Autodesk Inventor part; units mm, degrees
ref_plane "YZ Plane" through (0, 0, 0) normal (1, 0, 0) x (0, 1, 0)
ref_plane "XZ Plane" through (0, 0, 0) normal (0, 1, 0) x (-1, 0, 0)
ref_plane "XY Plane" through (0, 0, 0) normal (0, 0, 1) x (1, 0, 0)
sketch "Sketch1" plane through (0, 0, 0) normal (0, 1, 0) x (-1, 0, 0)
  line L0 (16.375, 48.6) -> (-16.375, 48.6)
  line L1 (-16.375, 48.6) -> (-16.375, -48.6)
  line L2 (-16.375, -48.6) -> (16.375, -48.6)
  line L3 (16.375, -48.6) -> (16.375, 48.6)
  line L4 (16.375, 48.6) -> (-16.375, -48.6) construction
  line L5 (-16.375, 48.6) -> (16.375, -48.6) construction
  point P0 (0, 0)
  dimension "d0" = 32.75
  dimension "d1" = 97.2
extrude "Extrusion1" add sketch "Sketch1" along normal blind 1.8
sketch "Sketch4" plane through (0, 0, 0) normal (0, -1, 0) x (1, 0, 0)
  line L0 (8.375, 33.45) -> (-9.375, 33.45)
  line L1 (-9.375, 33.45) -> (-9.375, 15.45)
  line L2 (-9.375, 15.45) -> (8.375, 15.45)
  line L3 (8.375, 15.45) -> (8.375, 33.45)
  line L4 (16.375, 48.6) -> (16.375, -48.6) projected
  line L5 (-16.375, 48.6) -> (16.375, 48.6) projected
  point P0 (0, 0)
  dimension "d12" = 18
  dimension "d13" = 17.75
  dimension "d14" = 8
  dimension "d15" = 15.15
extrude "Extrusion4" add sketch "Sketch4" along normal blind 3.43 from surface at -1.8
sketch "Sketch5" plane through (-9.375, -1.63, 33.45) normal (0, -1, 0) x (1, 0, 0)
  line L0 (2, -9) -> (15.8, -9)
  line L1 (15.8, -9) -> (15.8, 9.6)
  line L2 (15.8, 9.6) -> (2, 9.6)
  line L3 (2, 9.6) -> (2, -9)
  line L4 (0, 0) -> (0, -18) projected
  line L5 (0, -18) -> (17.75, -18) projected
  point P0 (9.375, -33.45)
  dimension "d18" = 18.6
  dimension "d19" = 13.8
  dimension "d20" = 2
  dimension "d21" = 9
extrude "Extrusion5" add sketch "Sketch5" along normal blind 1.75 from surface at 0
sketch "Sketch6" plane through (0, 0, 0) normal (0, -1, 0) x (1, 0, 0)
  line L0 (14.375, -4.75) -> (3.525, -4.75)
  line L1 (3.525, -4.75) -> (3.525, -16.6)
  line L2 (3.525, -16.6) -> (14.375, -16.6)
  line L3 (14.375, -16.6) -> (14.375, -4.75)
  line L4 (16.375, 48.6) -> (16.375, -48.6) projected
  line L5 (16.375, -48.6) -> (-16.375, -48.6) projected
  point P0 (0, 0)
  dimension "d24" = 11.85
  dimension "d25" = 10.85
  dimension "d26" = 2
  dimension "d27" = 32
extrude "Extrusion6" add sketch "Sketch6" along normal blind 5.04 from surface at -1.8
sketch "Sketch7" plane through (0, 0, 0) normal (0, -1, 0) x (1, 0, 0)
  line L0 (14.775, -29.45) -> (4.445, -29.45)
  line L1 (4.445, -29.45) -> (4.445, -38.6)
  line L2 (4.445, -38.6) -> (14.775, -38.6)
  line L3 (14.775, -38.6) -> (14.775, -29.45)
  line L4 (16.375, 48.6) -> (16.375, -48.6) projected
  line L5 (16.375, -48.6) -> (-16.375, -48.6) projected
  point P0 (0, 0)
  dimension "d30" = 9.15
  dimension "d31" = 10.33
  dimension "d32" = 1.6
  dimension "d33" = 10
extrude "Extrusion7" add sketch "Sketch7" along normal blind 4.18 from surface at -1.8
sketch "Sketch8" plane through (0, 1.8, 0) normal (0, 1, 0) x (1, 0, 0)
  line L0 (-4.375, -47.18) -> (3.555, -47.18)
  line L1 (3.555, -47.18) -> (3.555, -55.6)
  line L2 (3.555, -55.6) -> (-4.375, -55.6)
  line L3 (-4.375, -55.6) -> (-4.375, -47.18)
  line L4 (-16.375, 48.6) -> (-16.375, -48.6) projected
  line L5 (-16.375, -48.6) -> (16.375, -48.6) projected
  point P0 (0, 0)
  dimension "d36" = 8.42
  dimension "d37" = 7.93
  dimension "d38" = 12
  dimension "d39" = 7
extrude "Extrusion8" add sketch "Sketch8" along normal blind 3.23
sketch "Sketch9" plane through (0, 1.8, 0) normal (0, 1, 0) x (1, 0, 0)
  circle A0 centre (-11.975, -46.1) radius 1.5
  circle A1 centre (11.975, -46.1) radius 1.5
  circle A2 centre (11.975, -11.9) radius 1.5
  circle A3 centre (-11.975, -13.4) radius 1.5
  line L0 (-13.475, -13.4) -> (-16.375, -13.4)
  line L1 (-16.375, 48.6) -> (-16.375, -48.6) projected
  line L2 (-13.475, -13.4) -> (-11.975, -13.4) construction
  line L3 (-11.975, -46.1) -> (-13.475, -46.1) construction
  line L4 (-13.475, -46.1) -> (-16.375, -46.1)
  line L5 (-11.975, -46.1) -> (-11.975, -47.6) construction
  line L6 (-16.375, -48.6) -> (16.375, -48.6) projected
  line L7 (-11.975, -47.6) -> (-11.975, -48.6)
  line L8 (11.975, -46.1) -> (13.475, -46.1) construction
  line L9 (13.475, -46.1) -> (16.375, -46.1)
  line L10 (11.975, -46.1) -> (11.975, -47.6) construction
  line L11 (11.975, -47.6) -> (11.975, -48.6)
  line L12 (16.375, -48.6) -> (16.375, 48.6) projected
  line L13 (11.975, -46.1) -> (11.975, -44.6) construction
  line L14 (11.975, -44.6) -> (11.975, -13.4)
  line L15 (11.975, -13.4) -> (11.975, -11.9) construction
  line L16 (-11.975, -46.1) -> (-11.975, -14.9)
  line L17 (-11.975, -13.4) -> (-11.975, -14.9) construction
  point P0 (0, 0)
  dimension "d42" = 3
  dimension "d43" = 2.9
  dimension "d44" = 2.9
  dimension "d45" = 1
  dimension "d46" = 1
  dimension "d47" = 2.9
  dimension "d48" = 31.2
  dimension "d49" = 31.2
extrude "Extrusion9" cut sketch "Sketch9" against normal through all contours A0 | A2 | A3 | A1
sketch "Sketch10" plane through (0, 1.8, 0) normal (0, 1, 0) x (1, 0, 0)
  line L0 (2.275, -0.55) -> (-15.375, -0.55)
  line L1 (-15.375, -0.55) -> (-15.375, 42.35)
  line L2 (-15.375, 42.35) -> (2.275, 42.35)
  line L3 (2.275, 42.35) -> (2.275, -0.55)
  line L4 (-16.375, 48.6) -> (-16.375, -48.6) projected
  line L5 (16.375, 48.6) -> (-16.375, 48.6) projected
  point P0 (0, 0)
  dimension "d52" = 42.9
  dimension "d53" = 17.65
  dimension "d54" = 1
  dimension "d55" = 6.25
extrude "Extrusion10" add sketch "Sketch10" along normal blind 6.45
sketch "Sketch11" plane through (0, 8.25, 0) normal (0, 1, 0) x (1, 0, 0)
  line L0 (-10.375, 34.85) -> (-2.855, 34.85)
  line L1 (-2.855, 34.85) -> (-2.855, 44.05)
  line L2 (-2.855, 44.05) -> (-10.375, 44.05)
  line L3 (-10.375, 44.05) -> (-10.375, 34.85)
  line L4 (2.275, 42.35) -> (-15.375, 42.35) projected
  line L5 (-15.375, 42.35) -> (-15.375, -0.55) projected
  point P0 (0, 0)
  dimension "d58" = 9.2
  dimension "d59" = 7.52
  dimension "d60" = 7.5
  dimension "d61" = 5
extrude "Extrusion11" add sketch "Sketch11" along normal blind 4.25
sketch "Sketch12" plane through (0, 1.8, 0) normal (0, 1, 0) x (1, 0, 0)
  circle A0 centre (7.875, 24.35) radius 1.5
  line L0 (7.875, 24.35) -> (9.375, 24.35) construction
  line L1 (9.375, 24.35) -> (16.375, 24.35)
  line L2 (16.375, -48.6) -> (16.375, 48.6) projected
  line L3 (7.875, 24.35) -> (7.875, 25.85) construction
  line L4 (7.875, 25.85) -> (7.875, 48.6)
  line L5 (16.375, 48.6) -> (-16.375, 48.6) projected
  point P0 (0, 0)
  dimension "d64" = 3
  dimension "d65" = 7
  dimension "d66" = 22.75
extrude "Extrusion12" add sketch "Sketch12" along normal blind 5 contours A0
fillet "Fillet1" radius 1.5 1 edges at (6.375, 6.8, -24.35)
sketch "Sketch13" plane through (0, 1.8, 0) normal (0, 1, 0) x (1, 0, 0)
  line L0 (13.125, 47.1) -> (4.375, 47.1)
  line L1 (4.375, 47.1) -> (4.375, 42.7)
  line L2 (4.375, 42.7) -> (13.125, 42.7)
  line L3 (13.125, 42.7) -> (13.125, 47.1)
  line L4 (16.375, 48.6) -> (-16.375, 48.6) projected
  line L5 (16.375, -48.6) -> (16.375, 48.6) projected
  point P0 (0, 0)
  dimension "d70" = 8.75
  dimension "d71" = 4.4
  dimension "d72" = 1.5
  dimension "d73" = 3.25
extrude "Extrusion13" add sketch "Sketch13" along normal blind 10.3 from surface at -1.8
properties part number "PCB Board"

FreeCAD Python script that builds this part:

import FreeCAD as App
import Part
import Sketcher
from FreeCAD import Vector
Q = App.Units.Quantity


def edges_at(feature, points):
    """Names of the edges that pass closest to the given points."""
    edges = feature.Shape.Edges
    near = lambda p: min(range(len(edges)), key=lambda i: edges[i].distToShape(Part.Vertex(*p))[0])
    return sorted({f"Edge{near(p) + 1}" for p in points})

doc = App.newDocument("Part")
body = doc.addObject("PartDesign::Body", "Body")

sketch1 = doc.addObject("Sketcher::SketchObject", "Sketch")
body.addObject(sketch1)
sketch1.AttachmentSupport = (doc.XZ_Plane, [""])
sketch1.MapMode = "FlatFace"
sketch1.addGeometry(Part.LineSegment(Vector(-16, -49, 0), Vector(-16, 49, 0)), False)
sketch1.addGeometry(Part.LineSegment(Vector(-16, 49, 0), Vector(16, 49, 0)), False)
sketch1.addGeometry(Part.LineSegment(Vector(16, 49, 0), Vector(16, -49, 0)), False)
sketch1.addGeometry(Part.LineSegment(Vector(16, -49, 0), Vector(-16, -49, 0)), False)
sketch1.addConstraint(Sketcher.Constraint("Coincident", 0, 2, 1, 1))
sketch1.addConstraint(Sketcher.Constraint("Coincident", 1, 2, 2, 1))
sketch1.addConstraint(Sketcher.Constraint("Coincident", 2, 2, 3, 1))
sketch1.addConstraint(Sketcher.Constraint("Coincident", 3, 2, 0, 1))
sketch1.addConstraint(Sketcher.Constraint("Vertical", 0))
sketch1.addConstraint(Sketcher.Constraint("Horizontal", 1))
sketch1.addConstraint(Sketcher.Constraint("Vertical", 2))
sketch1.addConstraint(Sketcher.Constraint("Horizontal", 3))
sketch1.addConstraint(Sketcher.Constraint("Symmetric", 0, 2, 2, 2, -1, 1))
sketch1.addConstraint(Sketcher.Constraint("DistanceY", 0, 1, 0, 2, Q("97.2 mm")))
sketch1.addConstraint(Sketcher.Constraint("DistanceX", 1, 1, 1, 2, Q("32.75 mm")))
pad1 = doc.addObject("PartDesign::Pad", "Pad")
body.addObject(pad1)
pad1.Profile = sketch1
pad1.Length = 1.8
pad1.Reversed = True

sketch2 = doc.addObject("Sketcher::SketchObject", "Sketch001")
body.addObject(sketch2)
sketch2.AttachmentSupport = (doc.XZ_Plane, [""])
sketch2.MapMode = "FlatFace"
sketch2.AttachmentOffset = App.Placement(Vector(0, 0, -1.8), App.Rotation())
sketch2.addGeometry(Part.LineSegment(Vector(8, 15, 0), Vector(8, 33, 0)), False)
sketch2.addGeometry(Part.LineSegment(Vector(8, 33, 0), Vector(-9, 33, 0)), False)
sketch2.addGeometry(Part.LineSegment(Vector(-9, 33, 0), Vector(-9, 15, 0)), False)
sketch2.addGeometry(Part.LineSegment(Vector(-9, 15, 0), Vector(8, 15, 0)), False)
sketch2.addConstraint(Sketcher.Constraint("Coincident", 0, 2, 1, 1))
sketch2.addConstraint(Sketcher.Constraint("Coincident", 1, 2, 2, 1))
sketch2.addConstraint(Sketcher.Constraint("Coincident", 2, 2, 3, 1))
sketch2.addConstraint(Sketcher.Constraint("Coincident", 3, 2, 0, 1))
sketch2.addConstraint(Sketcher.Constraint("Vertical", 0))
sketch2.addConstraint(Sketcher.Constraint("Horizontal", 1))
sketch2.addConstraint(Sketcher.Constraint("Vertical", 2))
sketch2.addConstraint(Sketcher.Constraint("Horizontal", 3))
sketch2.addConstraint(Sketcher.Constraint("DistanceY", 0, 1, 0, 2, Q("18 mm")))
sketch2.addConstraint(Sketcher.Constraint("DistanceX", 1, 2, 1, 1, Q("17.75 mm")))
sketch2.addConstraint(Sketcher.Constraint("DistanceY", -1, 1, 0, 2, Q("33.45 mm")))
sketch2.addConstraint(Sketcher.Constraint("DistanceX", -1, 1, 0, 2, Q("8.375 mm")))
pad2 = doc.addObject("PartDesign::Pad", "Pad001")
body.addObject(pad2)
pad2.Profile = sketch2
pad2.Length = 3.43

sketch3 = doc.addObject("Sketcher::SketchObject", "Sketch002")
body.addObject(sketch3)
sketch3.AttachmentSupport = (doc.XZ_Plane, [""])
sketch3.MapMode = "FlatFace"
sketch3.AttachmentOffset = App.Placement(Vector(0, 0, 1.63), App.Rotation())
sketch3.addGeometry(Part.LineSegment(Vector(-7, 43, 0), Vector(-7, 24, 0)), False)
sketch3.addGeometry(Part.LineSegment(Vector(-7, 24, 0), Vector(6, 24, 0)), False)
sketch3.addGeometry(Part.LineSegment(Vector(6, 24, 0), Vector(6, 43, 0)), False)
sketch3.addGeometry(Part.LineSegment(Vector(6, 43, 0), Vector(-7, 43, 0)), False)
sketch3.addConstraint(Sketcher.Constraint("Coincident", 0, 2, 1, 1))
sketch3.addConstraint(Sketcher.Constraint("Coincident", 1, 2, 2, 1))
sketch3.addConstraint(Sketcher.Constraint("Coincident", 2, 2, 3, 1))
sketch3.addConstraint(Sketcher.Constraint("Coincident", 3, 2, 0, 1))
sketch3.addConstraint(Sketcher.Constraint("Vertical", 0))
sketch3.addConstraint(Sketcher.Constraint("Horizontal", 1))
sketch3.addConstraint(Sketcher.Constraint("Vertical", 2))
sketch3.addConstraint(Sketcher.Constraint("Horizontal", 3))
sketch3.addConstraint(Sketcher.Constraint("DistanceX", 1, 1, 1, 2, Q("13.8 mm")))
sketch3.addConstraint(Sketcher.Constraint("DistanceY", 0, 2, 0, 1, Q("18.6 mm")))
sketch3.addConstraint(Sketcher.Constraint("DistanceY", -1, 1, 0, 2, Q("24.45 mm")))
sketch3.addConstraint(Sketcher.Constraint("DistanceX", 0, 2, -1, 1, Q("7.375 mm")))
pad3 = doc.addObject("PartDesign::Pad", "Pad002")
body.addObject(pad3)
pad3.Profile = sketch3
pad3.Length = 1.75

sketch4 = doc.addObject("Sketcher::SketchObject", "Sketch003")
body.addObject(sketch4)
sketch4.AttachmentSupport = (doc.XZ_Plane, [""])
sketch4.MapMode = "FlatFace"
sketch4.AttachmentOffset = App.Placement(Vector(0, 0, -1.8), App.Rotation())
sketch4.addGeometry(Part.LineSegment(Vector(14, -17, 0), Vector(14, -5, 0)), False)
sketch4.addGeometry(Part.LineSegment(Vector(14, -5, 0), Vector(4, -5, 0)), False)
sketch4.addGeometry(Part.LineSegment(Vector(4, -5, 0), Vector(4, -17, 0)), False)
sketch4.addGeometry(Part.LineSegment(Vector(4, -17, 0), Vector(14, -17, 0)), False)
sketch4.addConstraint(Sketcher.Constraint("Coincident", 0, 2, 1, 1))
sketch4.addConstraint(Sketcher.Constraint("Coincident", 1, 2, 2, 1))
sketch4.addConstraint(Sketcher.Constraint("Coincident", 2, 2, 3, 1))
sketch4.addConstraint(Sketcher.Constraint("Coincident", 3, 2, 0, 1))
sketch4.addConstraint(Sketcher.Constraint("Vertical", 0))
sketch4.addConstraint(Sketcher.Constraint("Horizontal", 1))
sketch4.addConstraint(Sketcher.Constraint("Vertical", 2))
sketch4.addConstraint(Sketcher.Constraint("Horizontal", 3))
sketch4.addConstraint(Sketcher.Constraint("DistanceX", 1, 2, 1, 1, Q("10.85 mm")))
sketch4.addConstraint(Sketcher.Constraint("DistanceY", 0, 1, 0, 2, Q("11.85 mm")))
sketch4.addConstraint(Sketcher.Constraint("DistanceY", 2, 2, -1, 1, Q("16.6 mm")))
sketch4.addConstraint(Sketcher.Constraint("DistanceX", -1, 1, 0, 2, Q("14.375 mm")))
pad4 = doc.addObject("PartDesign::Pad", "Pad003")
body.addObject(pad4)
pad4.Profile = sketch4
pad4.Length = 5.04

sketch5 = doc.addObject("Sketcher::SketchObject", "Sketch004")
body.addObject(sketch5)
sketch5.AttachmentSupport = (doc.XZ_Plane, [""])
sketch5.MapMode = "FlatFace"
sketch5.AttachmentOffset = App.Placement(Vector(0, 0, -1.8), App.Rotation())
sketch5.addGeometry(Part.LineSegment(Vector(15, -39, 0), Vector(15, -29, 0)), False)
sketch5.addGeometry(Part.LineSegment(Vector(15, -29, 0), Vector(4, -29, 0)), False)
sketch5.addGeometry(Part.LineSegment(Vector(4, -29, 0), Vector(4, -39, 0)), False)
sketch5.addGeometry(Part.LineSegment(Vector(4, -39, 0), Vector(15, -39, 0)), False)
sketch5.addConstraint(Sketcher.Constraint("Coincident", 0, 2, 1, 1))
sketch5.addConstraint(Sketcher.Constraint("Coincident", 1, 2, 2, 1))
sketch5.addConstraint(Sketcher.Constraint("Coincident", 2, 2, 3, 1))
sketch5.addConstraint(Sketcher.Constraint("Coincident", 3, 2, 0, 1))
sketch5.addConstraint(Sketcher.Constraint("Vertical", 0))
sketch5.addConstraint(Sketcher.Constraint("Horizontal", 1))
sketch5.addConstraint(Sketcher.Constraint("Vertical", 2))
sketch5.addConstraint(Sketcher.Constraint("Horizontal", 3))
sketch5.addConstraint(Sketcher.Constraint("DistanceX", 1, 2, 1, 1, Q("10.33 mm")))
sketch5.addConstraint(Sketcher.Constraint("DistanceY", 0, 1, 0, 2, Q("9.15 mm")))
sketch5.addConstraint(Sketcher.Constraint("DistanceY", 2, 2, -1, 1, Q("38.6 mm")))
sketch5.addConstraint(Sketcher.Constraint("DistanceX", -1, 1, 0, 2, Q("14.775 mm")))
pad5 = doc.addObject("PartDesign::Pad", "Pad004")
body.addObject(pad5)
pad5.Profile = sketch5
pad5.Length = 4.18

sketch6 = doc.addObject("Sketcher::SketchObject", "Sketch005")
body.addObject(sketch6)
sketch6.AttachmentSupport = (doc.XZ_Plane, [""])
sketch6.MapMode = "FlatFace"
sketch6.AttachmentOffset = App.Placement(Vector(0, 0, -1.8), App.Rotation())
sketch6.addGeometry(Part.LineSegment(Vector(4, 47, 0), Vector(-4, 47, 0)), False)
sketch6.addGeometry(Part.LineSegment(Vector(-4, 47, 0), Vector(-4, 56, 0)), False)
sketch6.addGeometry(Part.LineSegment(Vector(-4, 56, 0), Vector(4, 56, 0)), False)
sketch6.addGeometry(Part.LineSegment(Vector(4, 56, 0), Vector(4, 47, 0)), False)
sketch6.addConstraint(Sketcher.Constraint("Coincident", 0, 2, 1, 1))
sketch6.addConstraint(Sketcher.Constraint("Coincident", 1, 2, 2, 1))
sketch6.addConstraint(Sketcher.Constraint("Coincident", 2, 2, 3, 1))
sketch6.addConstraint(Sketcher.Constraint("Coincident", 3, 2, 0, 1))
sketch6.addConstraint(Sketcher.Constraint("Horizontal", 0))
sketch6.addConstraint(Sketcher.Constraint("Vertical", 1))
sketch6.addConstraint(Sketcher.Constraint("Horizontal", 2))
sketch6.addConstraint(Sketcher.Constraint("Vertical", 3))
sketch6.addConstraint(Sketcher.Constraint("DistanceX", 0, 2, 0, 1, Q("7.93 mm")))
sketch6.addConstraint(Sketcher.Constraint("DistanceY", 1, 1, 1, 2, Q("8.42 mm")))
sketch6.addConstraint(Sketcher.Constraint("DistanceY", -1, 1, 1, 2, Q("55.6 mm")))
sketch6.addConstraint(Sketcher.Constraint("DistanceX", 0, 2, -1, 1, Q("4.375 mm")))
pad6 = doc.addObject("PartDesign::Pad", "Pad005")
body.addObject(pad6)
pad6.Profile = sketch6
pad6.Length = 3.23
pad6.Reversed = True

sketch7 = doc.addObject("Sketcher::SketchObject", "Sketch006")
body.addObject(sketch7)
sketch7.AttachmentSupport = (doc.XZ_Plane, [""])
sketch7.MapMode = "FlatFace"
sketch7.AttachmentOffset = App.Placement(Vector(0, 0, -1.8), App.Rotation())
sketch7.addGeometry(Part.Circle(Vector(-12, 46.1, 0), Vector(0, 0, 1), 1.5), False)
sketch7.addGeometry(Part.Circle(Vector(12, 11.9, 0), Vector(0, 0, 1), 1.5), False)
sketch7.addGeometry(Part.Circle(Vector(-12, 13.4, 0), Vector(0, 0, 1), 1.5), False)
sketch7.addGeometry(Part.Circle(Vector(12, 46.1, 0), Vector(0, 0, 1), 1.5), False)
sketch7.addConstraint(Sketcher.Constraint("Equal", 0, 1))
sketch7.addConstraint(Sketcher.Constraint("Equal", 1, 2))
sketch7.addConstraint(Sketcher.Constraint("Equal", 2, 3))
sketch7.addConstraint(Sketcher.Constraint("Symmetric", 0, 3, 3, 3, -2))
sketch7.addConstraint(Sketcher.Constraint("Vertical", 0, 3, 2, 3))
sketch7.addConstraint(Sketcher.Constraint("Vertical", 1, 3, 3, 3))
sketch7.addConstraint(Sketcher.Constraint("Diameter", 0, Q("3 mm")))
sketch7.addConstraint(Sketcher.Constraint("DistanceY", -1, 1, 0, 3, Q("46.1 mm")))
sketch7.addConstraint(Sketcher.Constraint("DistanceY", -1, 1, 1, 3, Q("11.9 mm")))
sketch7.addConstraint(Sketcher.Constraint("DistanceY", -1, 1, 2, 3, Q("13.4 mm")))
sketch7.addConstraint(Sketcher.Constraint("DistanceX", 0, 3, 1, 3, Q("23.95 mm")))
pocket1 = doc.addObject("PartDesign::Pocket", "Pocket")
body.addObject(pocket1)
pocket1.Profile = sketch7
pocket1.Type = "ThroughAll"
pocket1.Reversed = True

sketch8 = doc.addObject("Sketcher::SketchObject", "Sketch007")
body.addObject(sketch8)
sketch8.AttachmentSupport = (doc.XZ_Plane, [""])
sketch8.MapMode = "FlatFace"
sketch8.AttachmentOffset = App.Placement(Vector(0, 0, -1.8), App.Rotation())
sketch8.addGeometry(Part.LineSegment(Vector(-15, 1, 0), Vector(2, 1, 0)), False)
sketch8.addGeometry(Part.LineSegment(Vector(2, 1, 0), Vector(2, -42, 0)), False)
sketch8.addGeometry(Part.LineSegment(Vector(2, -42, 0), Vector(-15, -42, 0)), False)
sketch8.addGeometry(Part.LineSegment(Vector(-15, -42, 0), Vector(-15, 1, 0)), False)
sketch8.addConstraint(Sketcher.Constraint("Coincident", 0, 2, 1, 1))
sketch8.addConstraint(Sketcher.Constraint("Coincident", 1, 2, 2, 1))
sketch8.addConstraint(Sketcher.Constraint("Coincident", 2, 2, 3, 1))
sketch8.addConstraint(Sketcher.Constraint("Coincident", 3, 2, 0, 1))
sketch8.addConstraint(Sketcher.Constraint("Horizontal", 0))
sketch8.addConstraint(Sketcher.Constraint("Vertical", 1))
sketch8.addConstraint(Sketcher.Constraint("Horizontal", 2))
sketch8.addConstraint(Sketcher.Constraint("Vertical", 3))
sketch8.addConstraint(Sketcher.Constraint("DistanceY", 1, 2, 1, 1, Q("42.9 mm")))
sketch8.addConstraint(Sketcher.Constraint("DistanceX", 0, 1, 0, 2, Q("17.65 mm")))
sketch8.addConstraint(Sketcher.Constraint("DistanceY", -1, 1, 0, 2, Q("0.55 mm")))
sketch8.addConstraint(Sketcher.Constraint("DistanceX", -1, 1, 0, 2, Q("2.275 mm")))
pad7 = doc.addObject("PartDesign::Pad", "Pad006")
body.addObject(pad7)
pad7.Profile = sketch8
pad7.Length = 6.45
pad7.Reversed = True

sketch9 = doc.addObject("Sketcher::SketchObject", "Sketch008")
body.addObject(sketch9)
sketch9.AttachmentSupport = (doc.XZ_Plane, [""])
sketch9.MapMode = "FlatFace"
sketch9.AttachmentOffset = App.Placement(Vector(0, 0, -8.25), App.Rotation())
sketch9.addGeometry(Part.LineSegment(Vector(-10, -35, 0), Vector(-3, -35, 0)), False)
sketch9.addGeometry(Part.LineSegment(Vector(-3, -35, 0), Vector(-3, -44, 0)), False)
sketch9.addGeometry(Part.LineSegment(Vector(-3, -44, 0), Vector(-10, -44, 0)), False)
sketch9.addGeometry(Part.LineSegment(Vector(-10, -44, 0), Vector(-10, -35, 0)), False)
sketch9.addConstraint(Sketcher.Constraint("Coincident", 0, 2, 1, 1))
sketch9.addConstraint(Sketcher.Constraint("Coincident", 1, 2, 2, 1))
sketch9.addConstraint(Sketcher.Constraint("Coincident", 2, 2, 3, 1))
sketch9.addConstraint(Sketcher.Constraint("Coincident", 3, 2, 0, 1))
sketch9.addConstraint(Sketcher.Constraint("Horizontal", 0))
sketch9.addConstraint(Sketcher.Constraint("Vertical", 1))
sketch9.addConstraint(Sketcher.Constraint("Horizontal", 2))
sketch9.addConstraint(Sketcher.Constraint("Vertical", 3))
sketch9.addConstraint(Sketcher.Constraint("DistanceY", 1, 2, 1, 1, Q("9.2 mm")))
sketch9.addConstraint(Sketcher.Constraint("DistanceX", 0, 1, 0, 2, Q("7.52 mm")))
sketch9.addConstraint(Sketcher.Constraint("DistanceY", 0, 2, -1, 1, Q("34.85 mm")))
sketch9.addConstraint(Sketcher.Constraint("DistanceX", 0, 2, -1, 1, Q("2.855 mm")))
pad8 = doc.addObject("PartDesign::Pad", "Pad007")
body.addObject(pad8)
pad8.Profile = sketch9
pad8.Length = 4.25
pad8.Reversed = True

sketch10 = doc.addObject("Sketcher::SketchObject", "Sketch009")
body.addObject(sketch10)
sketch10.AttachmentSupport = (doc.XZ_Plane, [""])
sketch10.MapMode = "FlatFace"
sketch10.AttachmentOffset = App.Placement(Vector(0, 0, -1.8), App.Rotation())
sketch10.addGeometry(Part.Circle(Vector(7.9, -24.4, 0), Vector(0, 0, 1), 1.5), False)
sketch10.addConstraint(Sketcher.Constraint("Diameter", 0, Q("3 mm")))
sketch10.addConstraint(Sketcher.Constraint("DistanceY", 0, 3, -1, 1, Q("24.35 mm")))
sketch10.addConstraint(Sketcher.Constraint("DistanceX", -1, 1, 0, 3, Q("7.875 mm")))
pad9 = doc.addObject("PartDesign::Pad", "Pad008")
body.addObject(pad9)
pad9.Profile = sketch10
pad9.Length = 5
pad9.Reversed = True
doc.recompute()

fillet = doc.addObject("PartDesign::Fillet", "Fillet")
body.addObject(fillet)
fillet.Base = (pad9, edges_at(pad9, [(6.375, 6.8, -24.35)]))
fillet.Radius = 1.5

sketch11 = doc.addObject("Sketcher::SketchObject", "Sketch010")
body.addObject(sketch11)
sketch11.AttachmentSupport = (doc.XZ_Plane, [""])
sketch11.MapMode = "FlatFace"
sketch11.addGeometry(Part.LineSegment(Vector(13.1, -42.7, 0), Vector(13.1, -47.1, 0)), False)
sketch11.addGeometry(Part.LineSegment(Vector(13.1, -47.1, 0), Vector(4.4, -47.1, 0)), False)
sketch11.addGeometry(Part.LineSegment(Vector(4.4, -47.1, 0), Vector(4.4, -42.7, 0)), False)
sketch11.addGeometry(Part.LineSegment(Vector(4.4, -42.7, 0), Vector(13.1, -42.7, 0)), False)
sketch11.addConstraint(Sketcher.Constraint("Coincident", 0, 2, 1, 1))
sketch11.addConstraint(Sketcher.Constraint("Coincident", 1, 2, 2, 1))
sketch11.addConstraint(Sketcher.Constraint("Coincident", 2, 2, 3, 1))
sketch11.addConstraint(Sketcher.Constraint("Coincident", 3, 2, 0, 1))
sketch11.addConstraint(Sketcher.Constraint("Vertical", 0))
sketch11.addConstraint(Sketcher.Constraint("Horizontal", 1))
sketch11.addConstraint(Sketcher.Constraint("Vertical", 2))
sketch11.addConstraint(Sketcher.Constraint("Horizontal", 3))
sketch11.addConstraint(Sketcher.Constraint("DistanceY", 0, 2, 0, 1, Q("4.4 mm")))
sketch11.addConstraint(Sketcher.Constraint("DistanceX", 1, 2, 1, 1, Q("8.75 mm")))
sketch11.addConstraint(Sketcher.Constraint("DistanceY", 0, 2, -1, 1, Q("47.1 mm")))
sketch11.addConstraint(Sketcher.Constraint("DistanceX", -1, 1, 0, 2, Q("13.125 mm")))
pad10 = doc.addObject("PartDesign::Pad", "Pad009")
body.addObject(pad10)
pad10.Profile = sketch11
pad10.Length = 10.3
pad10.Reversed = True

doc.recompute()
